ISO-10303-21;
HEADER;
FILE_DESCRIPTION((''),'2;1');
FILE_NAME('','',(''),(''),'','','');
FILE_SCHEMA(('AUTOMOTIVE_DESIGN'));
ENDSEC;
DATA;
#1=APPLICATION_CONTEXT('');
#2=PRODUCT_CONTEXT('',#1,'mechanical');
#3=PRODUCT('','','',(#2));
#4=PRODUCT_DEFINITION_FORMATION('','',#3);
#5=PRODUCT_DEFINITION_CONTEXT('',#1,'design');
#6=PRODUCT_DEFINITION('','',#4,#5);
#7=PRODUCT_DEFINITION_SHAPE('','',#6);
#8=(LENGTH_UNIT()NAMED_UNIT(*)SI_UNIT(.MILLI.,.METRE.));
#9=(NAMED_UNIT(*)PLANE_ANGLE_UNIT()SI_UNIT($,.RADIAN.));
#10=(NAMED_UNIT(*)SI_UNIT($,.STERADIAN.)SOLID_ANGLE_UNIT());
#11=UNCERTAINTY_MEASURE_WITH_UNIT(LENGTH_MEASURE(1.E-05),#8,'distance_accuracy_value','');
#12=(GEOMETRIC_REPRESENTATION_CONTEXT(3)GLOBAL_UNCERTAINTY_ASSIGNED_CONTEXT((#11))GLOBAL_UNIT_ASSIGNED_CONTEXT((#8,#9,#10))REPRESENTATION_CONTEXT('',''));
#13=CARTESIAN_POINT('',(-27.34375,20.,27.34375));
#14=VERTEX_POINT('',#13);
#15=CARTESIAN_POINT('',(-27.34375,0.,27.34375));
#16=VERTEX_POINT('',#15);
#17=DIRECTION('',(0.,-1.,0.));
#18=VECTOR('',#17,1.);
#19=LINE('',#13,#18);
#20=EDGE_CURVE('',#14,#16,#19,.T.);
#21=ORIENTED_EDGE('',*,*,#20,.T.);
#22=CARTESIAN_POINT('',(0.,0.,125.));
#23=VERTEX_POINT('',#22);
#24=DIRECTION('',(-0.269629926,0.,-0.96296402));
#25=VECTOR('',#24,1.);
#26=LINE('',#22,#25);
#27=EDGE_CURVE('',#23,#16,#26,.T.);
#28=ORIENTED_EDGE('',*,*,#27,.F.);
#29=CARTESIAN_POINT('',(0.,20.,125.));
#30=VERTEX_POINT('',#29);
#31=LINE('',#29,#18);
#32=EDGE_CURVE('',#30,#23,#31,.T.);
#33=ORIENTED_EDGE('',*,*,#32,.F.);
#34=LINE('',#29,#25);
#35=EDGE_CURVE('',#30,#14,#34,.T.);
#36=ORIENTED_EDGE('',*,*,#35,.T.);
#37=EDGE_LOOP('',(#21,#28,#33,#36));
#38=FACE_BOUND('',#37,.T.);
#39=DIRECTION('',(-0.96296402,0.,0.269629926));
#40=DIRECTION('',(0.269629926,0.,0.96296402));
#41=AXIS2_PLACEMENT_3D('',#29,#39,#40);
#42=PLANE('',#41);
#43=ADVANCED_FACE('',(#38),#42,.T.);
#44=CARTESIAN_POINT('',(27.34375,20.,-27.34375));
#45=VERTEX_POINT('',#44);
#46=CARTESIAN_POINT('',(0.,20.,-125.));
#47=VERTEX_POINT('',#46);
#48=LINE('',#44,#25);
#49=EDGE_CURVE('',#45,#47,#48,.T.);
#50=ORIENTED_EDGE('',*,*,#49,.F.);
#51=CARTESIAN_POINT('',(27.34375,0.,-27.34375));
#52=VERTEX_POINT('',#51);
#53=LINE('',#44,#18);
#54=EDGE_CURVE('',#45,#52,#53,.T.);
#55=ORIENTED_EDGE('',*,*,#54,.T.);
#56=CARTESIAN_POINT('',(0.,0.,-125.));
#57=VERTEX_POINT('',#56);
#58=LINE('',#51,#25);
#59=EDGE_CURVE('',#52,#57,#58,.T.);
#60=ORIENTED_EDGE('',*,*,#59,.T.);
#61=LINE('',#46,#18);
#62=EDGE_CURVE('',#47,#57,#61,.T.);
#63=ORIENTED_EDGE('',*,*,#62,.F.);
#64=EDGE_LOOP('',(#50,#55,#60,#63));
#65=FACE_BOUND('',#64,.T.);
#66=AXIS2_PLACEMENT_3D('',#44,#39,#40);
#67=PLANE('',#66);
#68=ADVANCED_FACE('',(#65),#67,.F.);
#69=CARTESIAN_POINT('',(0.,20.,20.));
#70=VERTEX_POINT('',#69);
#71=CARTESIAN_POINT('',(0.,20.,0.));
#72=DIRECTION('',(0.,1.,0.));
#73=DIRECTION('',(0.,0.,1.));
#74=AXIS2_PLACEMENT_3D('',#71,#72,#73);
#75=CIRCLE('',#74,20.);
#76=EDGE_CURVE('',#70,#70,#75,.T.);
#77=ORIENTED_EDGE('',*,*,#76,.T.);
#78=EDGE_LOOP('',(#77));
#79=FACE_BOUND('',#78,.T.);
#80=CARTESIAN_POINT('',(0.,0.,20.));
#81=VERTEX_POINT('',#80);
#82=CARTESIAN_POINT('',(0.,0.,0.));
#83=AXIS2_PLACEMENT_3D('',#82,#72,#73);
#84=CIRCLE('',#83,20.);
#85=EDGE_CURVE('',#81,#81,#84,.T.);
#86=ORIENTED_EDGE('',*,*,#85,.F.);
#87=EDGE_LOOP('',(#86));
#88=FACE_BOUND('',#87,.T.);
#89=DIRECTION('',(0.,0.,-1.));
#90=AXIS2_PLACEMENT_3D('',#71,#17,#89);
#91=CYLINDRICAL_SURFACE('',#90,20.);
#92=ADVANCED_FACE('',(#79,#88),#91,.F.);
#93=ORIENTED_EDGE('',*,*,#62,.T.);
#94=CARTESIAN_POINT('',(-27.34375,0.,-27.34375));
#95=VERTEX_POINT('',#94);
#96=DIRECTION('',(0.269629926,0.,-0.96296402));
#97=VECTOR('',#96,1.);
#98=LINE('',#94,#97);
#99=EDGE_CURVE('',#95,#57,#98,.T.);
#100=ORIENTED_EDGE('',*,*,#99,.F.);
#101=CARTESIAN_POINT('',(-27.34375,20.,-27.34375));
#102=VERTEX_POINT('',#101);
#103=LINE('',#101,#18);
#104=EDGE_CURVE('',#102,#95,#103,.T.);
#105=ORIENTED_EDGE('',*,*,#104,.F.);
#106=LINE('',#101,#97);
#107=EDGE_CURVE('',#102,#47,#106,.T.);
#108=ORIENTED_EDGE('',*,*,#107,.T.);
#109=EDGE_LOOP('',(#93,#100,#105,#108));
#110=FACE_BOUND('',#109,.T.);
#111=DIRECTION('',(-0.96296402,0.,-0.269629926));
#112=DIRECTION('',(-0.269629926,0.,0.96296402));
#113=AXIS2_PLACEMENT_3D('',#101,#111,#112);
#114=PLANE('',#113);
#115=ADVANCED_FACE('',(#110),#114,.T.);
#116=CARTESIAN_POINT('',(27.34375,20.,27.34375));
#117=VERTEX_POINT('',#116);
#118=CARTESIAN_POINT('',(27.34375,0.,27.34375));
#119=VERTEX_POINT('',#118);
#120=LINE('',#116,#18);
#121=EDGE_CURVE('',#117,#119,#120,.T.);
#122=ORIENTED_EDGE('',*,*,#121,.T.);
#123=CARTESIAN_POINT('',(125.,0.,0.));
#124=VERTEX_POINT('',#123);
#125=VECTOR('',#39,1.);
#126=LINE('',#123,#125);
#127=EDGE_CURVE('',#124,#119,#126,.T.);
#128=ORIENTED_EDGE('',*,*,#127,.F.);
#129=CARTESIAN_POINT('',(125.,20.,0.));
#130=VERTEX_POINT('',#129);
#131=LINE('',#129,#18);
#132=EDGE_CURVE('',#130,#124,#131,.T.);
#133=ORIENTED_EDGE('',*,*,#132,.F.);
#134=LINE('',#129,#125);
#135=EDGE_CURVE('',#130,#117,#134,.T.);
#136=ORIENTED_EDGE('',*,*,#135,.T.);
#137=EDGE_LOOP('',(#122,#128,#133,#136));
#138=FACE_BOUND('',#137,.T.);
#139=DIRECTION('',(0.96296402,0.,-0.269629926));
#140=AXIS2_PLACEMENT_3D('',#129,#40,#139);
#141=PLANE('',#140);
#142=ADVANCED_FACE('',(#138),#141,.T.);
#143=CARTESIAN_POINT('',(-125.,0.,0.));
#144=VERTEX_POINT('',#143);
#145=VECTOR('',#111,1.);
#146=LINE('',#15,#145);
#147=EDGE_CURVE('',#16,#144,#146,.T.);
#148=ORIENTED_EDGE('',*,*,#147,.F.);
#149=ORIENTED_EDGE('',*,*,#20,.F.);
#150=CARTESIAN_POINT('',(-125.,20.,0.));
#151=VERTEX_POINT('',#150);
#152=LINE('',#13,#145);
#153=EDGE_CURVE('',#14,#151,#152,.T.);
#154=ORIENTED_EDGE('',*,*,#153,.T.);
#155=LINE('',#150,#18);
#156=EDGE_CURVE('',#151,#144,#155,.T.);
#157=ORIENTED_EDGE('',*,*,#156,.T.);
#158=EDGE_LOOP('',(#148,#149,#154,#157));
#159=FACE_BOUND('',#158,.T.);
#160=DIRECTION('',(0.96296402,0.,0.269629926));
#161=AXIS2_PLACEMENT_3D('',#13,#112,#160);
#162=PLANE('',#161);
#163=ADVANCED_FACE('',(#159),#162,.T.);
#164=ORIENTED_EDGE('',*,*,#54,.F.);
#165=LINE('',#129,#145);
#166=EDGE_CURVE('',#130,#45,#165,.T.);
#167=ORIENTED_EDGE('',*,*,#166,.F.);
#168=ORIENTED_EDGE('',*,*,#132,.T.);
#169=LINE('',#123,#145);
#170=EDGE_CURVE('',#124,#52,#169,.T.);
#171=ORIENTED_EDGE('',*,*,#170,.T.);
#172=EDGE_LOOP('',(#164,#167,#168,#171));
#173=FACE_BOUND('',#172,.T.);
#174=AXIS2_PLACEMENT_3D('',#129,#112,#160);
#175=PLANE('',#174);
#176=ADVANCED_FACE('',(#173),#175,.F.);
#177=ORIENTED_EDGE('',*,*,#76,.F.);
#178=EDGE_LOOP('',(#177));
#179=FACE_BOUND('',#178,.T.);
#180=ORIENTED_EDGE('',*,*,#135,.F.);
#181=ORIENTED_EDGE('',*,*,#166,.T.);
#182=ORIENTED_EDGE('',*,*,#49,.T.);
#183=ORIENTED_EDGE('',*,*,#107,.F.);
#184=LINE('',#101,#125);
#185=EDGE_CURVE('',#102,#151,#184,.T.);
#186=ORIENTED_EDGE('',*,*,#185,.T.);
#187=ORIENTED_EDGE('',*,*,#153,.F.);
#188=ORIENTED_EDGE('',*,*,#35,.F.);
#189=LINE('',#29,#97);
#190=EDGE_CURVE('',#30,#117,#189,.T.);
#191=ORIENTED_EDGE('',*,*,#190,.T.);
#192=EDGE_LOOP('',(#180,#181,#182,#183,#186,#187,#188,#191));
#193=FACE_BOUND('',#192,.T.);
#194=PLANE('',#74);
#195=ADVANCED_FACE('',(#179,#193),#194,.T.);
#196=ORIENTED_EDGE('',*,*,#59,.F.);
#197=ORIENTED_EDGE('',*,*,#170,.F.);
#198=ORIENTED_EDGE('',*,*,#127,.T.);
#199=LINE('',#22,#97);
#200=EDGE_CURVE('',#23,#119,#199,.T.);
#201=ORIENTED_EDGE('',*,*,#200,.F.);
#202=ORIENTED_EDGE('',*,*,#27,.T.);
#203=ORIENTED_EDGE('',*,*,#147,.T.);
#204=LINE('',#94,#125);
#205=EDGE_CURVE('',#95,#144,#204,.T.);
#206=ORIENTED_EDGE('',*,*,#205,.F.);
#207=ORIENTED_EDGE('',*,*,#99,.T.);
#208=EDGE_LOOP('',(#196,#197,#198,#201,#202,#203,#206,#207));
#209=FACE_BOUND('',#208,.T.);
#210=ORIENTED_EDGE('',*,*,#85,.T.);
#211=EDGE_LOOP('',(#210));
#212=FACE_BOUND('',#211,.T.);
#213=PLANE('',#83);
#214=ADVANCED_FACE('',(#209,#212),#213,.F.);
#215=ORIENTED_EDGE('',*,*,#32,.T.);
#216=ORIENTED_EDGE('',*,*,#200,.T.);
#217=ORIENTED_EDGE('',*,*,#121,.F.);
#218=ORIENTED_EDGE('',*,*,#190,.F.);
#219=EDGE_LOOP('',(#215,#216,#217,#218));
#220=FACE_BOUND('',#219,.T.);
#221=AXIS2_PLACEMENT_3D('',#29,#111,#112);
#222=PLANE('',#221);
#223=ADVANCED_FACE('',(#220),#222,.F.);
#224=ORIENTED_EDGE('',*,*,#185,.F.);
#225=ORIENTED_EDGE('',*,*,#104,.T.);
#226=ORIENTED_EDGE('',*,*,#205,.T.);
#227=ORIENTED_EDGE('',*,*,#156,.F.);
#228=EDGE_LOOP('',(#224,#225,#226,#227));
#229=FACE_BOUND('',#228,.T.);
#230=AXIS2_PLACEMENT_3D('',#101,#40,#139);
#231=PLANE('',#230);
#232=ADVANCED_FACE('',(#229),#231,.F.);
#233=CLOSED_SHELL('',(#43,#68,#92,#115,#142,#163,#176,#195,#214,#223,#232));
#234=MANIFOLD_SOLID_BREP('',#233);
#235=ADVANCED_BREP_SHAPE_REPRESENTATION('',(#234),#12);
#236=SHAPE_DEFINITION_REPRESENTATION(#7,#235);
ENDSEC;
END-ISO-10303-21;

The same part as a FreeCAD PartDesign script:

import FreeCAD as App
import Part
import Sketcher
Q = App.Units.Quantity


def add_polygon(sketch, points):
    """Adds a closed chain of lines whose ends are joined by coincident constraints."""
    first, n = sketch.GeometryCount, len(points)
    for a, b in zip(points, points[1:] + points[:1]):
        sketch.addGeometry(Part.LineSegment(App.Vector(*a, 0), App.Vector(*b, 0)), False)
    for i in range(n):
        sketch.addConstraint(Sketcher.Constraint("Coincident", first + i, 2, first + (i + 1) % n, 1))

doc = App.newDocument("Part")
body = doc.addObject("PartDesign::Body", "Body")

# Sketch on XZ plane
sketch1 = body.newObject("Sketcher::SketchObject", "Sketch")
sketch1.AttachmentSupport = (doc.getObject("XZ_Plane"), [""])
sketch1.MapMode = "FlatFace"
add_polygon(sketch1, [(125, 0), (27, -27), (0, -125), (-27, -27), (-125, 0), (-27, 27), (0, 125), (27, 27)])  # lines 0-7
sketch1.addGeometry(Part.Circle(App.Vector(0, 0, 0), App.Vector(0, 0, 1), 20), False)  # 8
sketch1.addConstraint([
    Sketcher.Constraint("Coincident", 8, 3, -1, 1),
    Sketcher.Constraint("Symmetric", 0, 2, 4, 2, -1, 1),
    Sketcher.Constraint("Symmetric", 1, 2, 5, 2, -1, 1),
    Sketcher.Constraint("Symmetric", 2, 2, 6, 2, -1, 1),
    Sketcher.Constraint("Symmetric", 3, 2, 7, 2, -1, 1),
    Sketcher.Constraint("Symmetric", 0, 2, 2, 2, -2),
    Sketcher.Constraint("PointOnObject", 1, 2, -2),
    Sketcher.Constraint("PointOnObject", 3, 2, -1),
    Sketcher.Constraint("Perpendicular", 0, 2),
    Sketcher.Constraint("Equal", 0, 1),
    Sketcher.Constraint("Diameter", 8, Q("40 mm")),
    Sketcher.Constraint("DistanceY", 1, 2, -1, 1, Q("125 mm")),
    Sketcher.Constraint("DistanceX", 2, 2, 0, 2, Q("54.6875 mm")),
])
pad1 = body.newObject("PartDesign::Pad", "Pad")
pad1.Profile = sketch1
pad1.Length = 20
pad1.Reversed = True

doc.recompute()
